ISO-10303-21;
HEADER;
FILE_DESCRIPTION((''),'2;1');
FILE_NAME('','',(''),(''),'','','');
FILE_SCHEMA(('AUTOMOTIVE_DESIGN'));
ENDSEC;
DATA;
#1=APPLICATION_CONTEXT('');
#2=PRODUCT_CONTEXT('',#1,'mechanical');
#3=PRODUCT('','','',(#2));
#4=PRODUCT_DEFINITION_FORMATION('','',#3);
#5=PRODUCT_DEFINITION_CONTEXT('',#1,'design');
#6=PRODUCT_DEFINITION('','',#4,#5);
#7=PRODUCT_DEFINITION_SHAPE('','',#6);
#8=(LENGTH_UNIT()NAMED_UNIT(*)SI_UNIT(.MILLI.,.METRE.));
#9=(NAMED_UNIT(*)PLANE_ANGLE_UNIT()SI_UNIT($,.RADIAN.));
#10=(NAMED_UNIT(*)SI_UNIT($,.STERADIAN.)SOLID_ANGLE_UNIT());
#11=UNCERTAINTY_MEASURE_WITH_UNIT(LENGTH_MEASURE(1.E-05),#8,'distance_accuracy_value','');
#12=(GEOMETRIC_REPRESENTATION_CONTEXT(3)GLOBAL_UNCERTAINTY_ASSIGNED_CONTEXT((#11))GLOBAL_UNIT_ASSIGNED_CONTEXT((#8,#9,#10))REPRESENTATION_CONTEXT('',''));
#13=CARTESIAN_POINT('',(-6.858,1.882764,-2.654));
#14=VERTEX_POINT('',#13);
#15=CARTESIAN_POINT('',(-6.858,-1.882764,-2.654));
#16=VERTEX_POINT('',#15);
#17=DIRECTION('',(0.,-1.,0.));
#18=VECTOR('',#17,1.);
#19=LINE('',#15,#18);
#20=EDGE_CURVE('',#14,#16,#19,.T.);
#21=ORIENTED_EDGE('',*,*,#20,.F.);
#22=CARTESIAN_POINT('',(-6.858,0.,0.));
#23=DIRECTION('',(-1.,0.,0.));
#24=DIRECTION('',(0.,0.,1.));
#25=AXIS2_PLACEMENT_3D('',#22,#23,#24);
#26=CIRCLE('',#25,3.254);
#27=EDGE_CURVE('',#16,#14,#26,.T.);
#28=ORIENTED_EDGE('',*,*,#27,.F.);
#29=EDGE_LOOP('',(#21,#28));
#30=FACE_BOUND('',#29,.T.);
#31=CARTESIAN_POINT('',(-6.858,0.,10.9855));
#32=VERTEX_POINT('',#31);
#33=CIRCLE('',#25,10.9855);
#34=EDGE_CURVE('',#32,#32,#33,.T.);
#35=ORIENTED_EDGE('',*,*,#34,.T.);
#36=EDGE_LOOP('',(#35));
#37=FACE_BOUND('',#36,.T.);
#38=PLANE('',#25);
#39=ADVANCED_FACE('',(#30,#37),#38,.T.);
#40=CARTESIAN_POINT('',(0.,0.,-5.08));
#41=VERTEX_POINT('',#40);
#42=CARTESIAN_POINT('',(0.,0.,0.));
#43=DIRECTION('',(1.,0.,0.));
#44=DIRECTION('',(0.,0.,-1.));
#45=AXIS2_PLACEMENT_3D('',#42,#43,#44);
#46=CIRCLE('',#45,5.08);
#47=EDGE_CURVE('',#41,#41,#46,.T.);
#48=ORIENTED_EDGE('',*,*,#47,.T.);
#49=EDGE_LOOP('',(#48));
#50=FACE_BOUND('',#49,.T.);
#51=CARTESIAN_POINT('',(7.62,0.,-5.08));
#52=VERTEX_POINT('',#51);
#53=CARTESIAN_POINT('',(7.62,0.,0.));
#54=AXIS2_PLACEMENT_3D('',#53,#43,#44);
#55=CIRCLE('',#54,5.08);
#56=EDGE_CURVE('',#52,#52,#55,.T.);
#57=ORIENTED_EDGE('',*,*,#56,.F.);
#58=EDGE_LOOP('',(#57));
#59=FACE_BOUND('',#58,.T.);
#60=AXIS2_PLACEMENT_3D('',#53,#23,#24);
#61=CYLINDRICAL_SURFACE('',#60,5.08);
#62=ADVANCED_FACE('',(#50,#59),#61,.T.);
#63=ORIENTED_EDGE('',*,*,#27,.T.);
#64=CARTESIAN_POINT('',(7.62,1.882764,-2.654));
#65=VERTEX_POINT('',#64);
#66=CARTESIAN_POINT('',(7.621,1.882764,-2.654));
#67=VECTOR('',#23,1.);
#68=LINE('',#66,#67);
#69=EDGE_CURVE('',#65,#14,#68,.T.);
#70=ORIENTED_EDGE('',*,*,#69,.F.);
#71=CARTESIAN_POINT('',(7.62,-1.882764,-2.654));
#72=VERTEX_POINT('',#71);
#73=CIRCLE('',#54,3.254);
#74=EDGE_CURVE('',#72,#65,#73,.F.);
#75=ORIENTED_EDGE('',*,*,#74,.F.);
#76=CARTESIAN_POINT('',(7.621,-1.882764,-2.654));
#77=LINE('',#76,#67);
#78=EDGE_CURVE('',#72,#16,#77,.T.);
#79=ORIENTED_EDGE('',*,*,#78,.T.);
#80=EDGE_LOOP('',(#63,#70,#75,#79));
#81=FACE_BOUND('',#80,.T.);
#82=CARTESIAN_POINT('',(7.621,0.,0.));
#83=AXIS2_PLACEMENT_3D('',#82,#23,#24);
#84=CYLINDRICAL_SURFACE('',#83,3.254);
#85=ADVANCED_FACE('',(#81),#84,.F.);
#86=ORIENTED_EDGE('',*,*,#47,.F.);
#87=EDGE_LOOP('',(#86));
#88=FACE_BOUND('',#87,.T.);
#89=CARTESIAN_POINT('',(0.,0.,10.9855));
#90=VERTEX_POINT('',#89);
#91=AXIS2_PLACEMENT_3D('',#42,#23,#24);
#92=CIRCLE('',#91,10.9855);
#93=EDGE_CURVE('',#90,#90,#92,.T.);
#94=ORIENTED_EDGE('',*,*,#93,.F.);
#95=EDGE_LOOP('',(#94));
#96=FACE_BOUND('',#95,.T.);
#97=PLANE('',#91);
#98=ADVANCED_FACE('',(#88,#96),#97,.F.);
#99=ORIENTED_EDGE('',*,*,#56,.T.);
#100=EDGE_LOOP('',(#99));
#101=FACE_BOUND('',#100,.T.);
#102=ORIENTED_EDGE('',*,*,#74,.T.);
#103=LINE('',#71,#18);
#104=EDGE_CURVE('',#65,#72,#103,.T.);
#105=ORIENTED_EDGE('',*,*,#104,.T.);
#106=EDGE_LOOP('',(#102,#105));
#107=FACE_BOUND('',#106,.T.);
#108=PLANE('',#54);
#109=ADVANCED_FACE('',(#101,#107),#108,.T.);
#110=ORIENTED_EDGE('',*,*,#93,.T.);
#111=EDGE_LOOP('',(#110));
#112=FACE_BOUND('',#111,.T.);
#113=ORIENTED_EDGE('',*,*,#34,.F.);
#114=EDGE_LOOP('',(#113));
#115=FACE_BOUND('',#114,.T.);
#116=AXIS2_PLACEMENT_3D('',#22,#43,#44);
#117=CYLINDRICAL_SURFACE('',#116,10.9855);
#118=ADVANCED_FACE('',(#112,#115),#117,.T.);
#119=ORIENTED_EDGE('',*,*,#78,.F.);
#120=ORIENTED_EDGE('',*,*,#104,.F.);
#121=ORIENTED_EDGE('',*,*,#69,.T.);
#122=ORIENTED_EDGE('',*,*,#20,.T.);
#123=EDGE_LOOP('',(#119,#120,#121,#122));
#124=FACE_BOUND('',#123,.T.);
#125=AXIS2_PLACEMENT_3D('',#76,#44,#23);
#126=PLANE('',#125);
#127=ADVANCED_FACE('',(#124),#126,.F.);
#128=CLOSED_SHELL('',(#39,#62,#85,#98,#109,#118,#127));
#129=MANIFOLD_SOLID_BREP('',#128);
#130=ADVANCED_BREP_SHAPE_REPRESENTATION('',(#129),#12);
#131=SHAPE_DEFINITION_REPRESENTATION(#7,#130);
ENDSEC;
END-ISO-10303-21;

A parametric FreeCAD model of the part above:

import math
import FreeCAD as App
import Part
import Sketcher
Q = App.Units.Quantity

doc = App.newDocument("Part")
body = doc.addObject("PartDesign::Body", "Body")

# Sketch on YZ plane
sketch1 = body.newObject("Sketcher::SketchObject", "Sketch")
sketch1.AttachmentSupport = (doc.getObject("YZ_Plane"), [""])
sketch1.MapMode = "FlatFace"
sketch1.addGeometry(Part.Circle(App.Vector(0, 0, 0), App.Vector(0, 0, 1), 5.08), False)
sketch1.addConstraint(Sketcher.Constraint("Coincident", 0, 3, -1, 1))
sketch1.addConstraint(Sketcher.Constraint("Diameter", 0, Q("0.4 in")))
pad1 = body.newObject("PartDesign::Pad", "Pad")
pad1.Profile = sketch1
pad1.Length = Q("0.3 in")

# Sketch on YZ plane
sketch2 = body.newObject("Sketcher::SketchObject", "Sketch001")
sketch2.AttachmentSupport = (doc.getObject("YZ_Plane"), [""])
sketch2.MapMode = "FlatFace"
sketch2.addGeometry(Part.Circle(App.Vector(0, 0, 0), App.Vector(0, 0, 1), 10.9855), False)
sketch2.addConstraint(Sketcher.Constraint("Coincident", 0, 3, -1, 1))
sketch2.addConstraint(Sketcher.Constraint("Diameter", 0, Q("0.865 in")))
pad2 = body.newObject("PartDesign::Pad", "Pad001")
pad2.Profile = sketch2
pad2.Length = Q("0.27 in")
pad2.Reversed = True

# Sketch on YZ plane
sketch3 = body.newObject("Sketcher::SketchObject", "Sketch002")
sketch3.AttachmentSupport = (doc.getObject("YZ_Plane"), [""])
sketch3.MapMode = "FlatFace"
sketch3.AttachmentOffset = App.Placement(App.Vector(0, 0, -0.27 * 25.4), App.Rotation())
sketch3.addGeometry(Part.LineSegment(App.Vector(1.882764, -2.654, 0), App.Vector(-1.882764, -2.654, 0)), False)
sketch3.addGeometry(Part.ArcOfCircle(Part.Circle(App.Vector(0, 0, 0), App.Vector(0, 0, 1), 3.254), math.radians(-54.647876), math.radians(234.647876)), False)
sketch3.addConstraint(Sketcher.Constraint("Coincident", 0, 1, 1, 1))
sketch3.addConstraint(Sketcher.Constraint("Coincident", 1, 2, 0, 2))
sketch3.addConstraint(Sketcher.Constraint("Horizontal", 0))
sketch3.addConstraint(Sketcher.Constraint("Coincident", 1, 3, -1, 1))
sketch3.addConstraint(Sketcher.Constraint("Radius", 1, 3.254))
sketch3.addConstraint(Sketcher.Constraint("DistanceY", 0, 1, -1, 1, 2.654))
pocket1 = body.newObject("PartDesign::Pocket", "Pocket")
pocket1.Profile = sketch3
pocket1.Type = "UpToFirst"
pocket1.Reversed = True

doc.recompute()
